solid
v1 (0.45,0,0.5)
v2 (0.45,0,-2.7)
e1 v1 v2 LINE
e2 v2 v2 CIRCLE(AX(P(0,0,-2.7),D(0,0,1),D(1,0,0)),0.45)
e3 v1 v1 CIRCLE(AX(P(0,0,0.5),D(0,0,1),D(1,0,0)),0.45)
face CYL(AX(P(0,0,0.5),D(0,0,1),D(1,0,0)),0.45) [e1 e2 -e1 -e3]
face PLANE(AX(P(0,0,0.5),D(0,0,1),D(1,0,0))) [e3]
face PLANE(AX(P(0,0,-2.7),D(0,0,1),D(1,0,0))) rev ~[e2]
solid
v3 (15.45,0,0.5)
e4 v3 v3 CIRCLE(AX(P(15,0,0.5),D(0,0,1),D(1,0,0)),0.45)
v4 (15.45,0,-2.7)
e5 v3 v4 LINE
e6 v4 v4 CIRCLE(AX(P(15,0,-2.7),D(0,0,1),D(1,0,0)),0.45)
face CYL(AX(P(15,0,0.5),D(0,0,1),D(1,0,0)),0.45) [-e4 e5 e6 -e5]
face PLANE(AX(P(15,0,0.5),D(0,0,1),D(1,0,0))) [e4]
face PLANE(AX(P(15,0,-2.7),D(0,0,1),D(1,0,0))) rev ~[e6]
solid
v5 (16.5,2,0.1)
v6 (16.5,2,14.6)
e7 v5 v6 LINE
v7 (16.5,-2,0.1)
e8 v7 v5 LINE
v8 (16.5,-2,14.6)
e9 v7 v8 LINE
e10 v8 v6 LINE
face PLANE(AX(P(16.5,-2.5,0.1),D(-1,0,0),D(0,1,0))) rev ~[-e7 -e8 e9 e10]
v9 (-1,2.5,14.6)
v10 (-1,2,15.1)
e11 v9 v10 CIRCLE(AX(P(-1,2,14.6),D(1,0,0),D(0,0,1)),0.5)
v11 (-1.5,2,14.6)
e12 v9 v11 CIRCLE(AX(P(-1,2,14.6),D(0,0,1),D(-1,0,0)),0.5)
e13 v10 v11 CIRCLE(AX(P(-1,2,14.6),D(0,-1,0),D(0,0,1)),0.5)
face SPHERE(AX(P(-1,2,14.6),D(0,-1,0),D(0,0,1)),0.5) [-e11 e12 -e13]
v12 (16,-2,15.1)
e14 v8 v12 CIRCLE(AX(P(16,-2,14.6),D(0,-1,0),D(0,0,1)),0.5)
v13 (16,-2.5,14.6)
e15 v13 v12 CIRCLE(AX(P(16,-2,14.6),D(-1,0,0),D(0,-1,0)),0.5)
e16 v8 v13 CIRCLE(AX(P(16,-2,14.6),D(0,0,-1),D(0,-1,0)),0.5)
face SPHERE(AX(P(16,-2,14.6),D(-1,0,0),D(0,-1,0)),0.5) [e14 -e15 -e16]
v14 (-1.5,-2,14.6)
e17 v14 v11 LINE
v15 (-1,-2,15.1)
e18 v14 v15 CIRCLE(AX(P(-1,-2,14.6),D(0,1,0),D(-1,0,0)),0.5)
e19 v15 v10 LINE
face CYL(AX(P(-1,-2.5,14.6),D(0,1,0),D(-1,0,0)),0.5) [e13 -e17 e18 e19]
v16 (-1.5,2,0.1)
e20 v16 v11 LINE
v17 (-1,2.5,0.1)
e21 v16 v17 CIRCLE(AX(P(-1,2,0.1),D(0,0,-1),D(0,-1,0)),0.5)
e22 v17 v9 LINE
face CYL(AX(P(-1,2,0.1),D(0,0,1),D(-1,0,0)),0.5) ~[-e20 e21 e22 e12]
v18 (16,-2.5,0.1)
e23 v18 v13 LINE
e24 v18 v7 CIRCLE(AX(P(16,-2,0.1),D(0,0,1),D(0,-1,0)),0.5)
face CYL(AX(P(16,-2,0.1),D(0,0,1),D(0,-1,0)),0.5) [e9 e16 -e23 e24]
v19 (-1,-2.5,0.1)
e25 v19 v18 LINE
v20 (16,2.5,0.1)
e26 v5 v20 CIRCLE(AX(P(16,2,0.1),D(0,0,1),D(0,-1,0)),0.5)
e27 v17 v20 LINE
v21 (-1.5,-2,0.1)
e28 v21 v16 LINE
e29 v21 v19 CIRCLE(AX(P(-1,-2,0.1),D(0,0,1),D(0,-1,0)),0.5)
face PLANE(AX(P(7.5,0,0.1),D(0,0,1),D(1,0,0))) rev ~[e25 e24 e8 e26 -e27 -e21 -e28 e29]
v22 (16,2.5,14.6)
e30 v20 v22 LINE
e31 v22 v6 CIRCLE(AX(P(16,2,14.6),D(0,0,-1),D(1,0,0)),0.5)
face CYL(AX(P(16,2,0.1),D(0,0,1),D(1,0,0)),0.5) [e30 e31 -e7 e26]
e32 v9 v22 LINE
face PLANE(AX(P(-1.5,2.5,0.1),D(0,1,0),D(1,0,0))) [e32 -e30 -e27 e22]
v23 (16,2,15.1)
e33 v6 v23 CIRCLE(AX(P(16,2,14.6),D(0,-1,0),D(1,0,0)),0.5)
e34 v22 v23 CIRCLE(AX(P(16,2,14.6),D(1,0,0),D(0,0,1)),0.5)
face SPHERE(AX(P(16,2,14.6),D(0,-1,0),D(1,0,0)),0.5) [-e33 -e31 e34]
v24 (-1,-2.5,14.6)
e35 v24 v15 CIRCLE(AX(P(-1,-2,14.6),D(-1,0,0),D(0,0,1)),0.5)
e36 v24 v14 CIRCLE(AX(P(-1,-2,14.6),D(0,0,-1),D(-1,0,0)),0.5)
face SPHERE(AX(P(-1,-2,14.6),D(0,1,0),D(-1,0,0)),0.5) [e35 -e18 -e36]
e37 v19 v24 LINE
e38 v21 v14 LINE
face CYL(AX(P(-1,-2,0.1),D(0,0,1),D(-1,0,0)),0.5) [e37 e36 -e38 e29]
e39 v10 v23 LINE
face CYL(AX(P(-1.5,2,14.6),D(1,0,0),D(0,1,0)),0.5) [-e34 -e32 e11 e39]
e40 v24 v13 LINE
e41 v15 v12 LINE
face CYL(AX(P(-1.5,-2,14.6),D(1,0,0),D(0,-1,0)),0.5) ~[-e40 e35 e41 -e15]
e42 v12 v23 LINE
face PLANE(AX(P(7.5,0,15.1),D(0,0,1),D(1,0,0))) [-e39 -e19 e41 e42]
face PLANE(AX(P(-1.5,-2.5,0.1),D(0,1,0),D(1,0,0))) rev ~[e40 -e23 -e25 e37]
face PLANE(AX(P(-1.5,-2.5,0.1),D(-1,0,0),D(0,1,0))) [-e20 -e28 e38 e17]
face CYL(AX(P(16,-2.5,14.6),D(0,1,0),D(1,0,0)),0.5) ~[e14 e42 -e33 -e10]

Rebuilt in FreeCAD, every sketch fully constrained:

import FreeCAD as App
import Part
import Sketcher
from FreeCAD import Vector
Q = App.Units.Quantity


def edges_at(feature, points):
    """Names of the edges that pass closest to the given points."""
    edges = feature.Shape.Edges
    near = lambda p: min(range(len(edges)), key=lambda i: edges[i].distToShape(Part.Vertex(*p))[0])
    return sorted({f"Edge{near(p) + 1}" for p in points})


def add_polygon(sketch, points):
    """Adds a closed chain of lines whose ends are joined by coincident constraints."""
    first, n = sketch.GeometryCount, len(points)
    for a, b in zip(points, points[1:] + points[:1]):
        sketch.addGeometry(Part.LineSegment(App.Vector(*a, 0), App.Vector(*b, 0)), False)
    for i in range(n):
        sketch.addConstraint(Sketcher.Constraint("Coincident", first + i, 2, first + (i + 1) % n, 1))

doc = App.newDocument("Part")
params = doc.addObject("Spreadsheet::Sheet", "Params")
for row, (alias, value) in enumerate([
    ("sketch1_width", "18 mm"),
    ("sketch1_height", "5 mm"),
    ("pad1_length", "15 mm"),
    ("fillet_radius", "0.5 mm"),
    ("sketch2_diameter", "0.9 mm"),
    ("pad2_length", "3.2 mm"),
], start=1):
    params.set(f"A{row}", alias)
    params.set(f"B{row}", "=" + value)
    params.setAlias(f"B{row}", alias)

body = doc.addObject("PartDesign::Body", "Body")

sketch1 = body.newObject("Sketcher::SketchObject", "Sketch")
sketch1.AttachmentSupport = (doc.getObject("XY_Plane"), [""])
sketch1.MapMode = "FlatFace"
sketch1.AttachmentOffset = App.Placement(Vector(0, 0, 0.1), App.Rotation())
add_polygon(sketch1, [(-2, 2), (-2, -2), (16, -2), (16, 2)])
sketch1.addConstraint([
    Sketcher.Constraint("Vertical", 0),
    Sketcher.Constraint("Horizontal", 1),
    Sketcher.Constraint("Vertical", 2),
    Sketcher.Constraint("Horizontal", 3),
    Sketcher.Constraint("DistanceX", 1, 1, 1, 2, Q("18 mm")),
    Sketcher.Constraint("DistanceY", 0, 2, 0, 1, Q("5 mm")),
    Sketcher.Constraint("DistanceX", 0, 2, -1, 1, Q("1.5 mm")),
    Sketcher.Constraint("DistanceY", 0, 2, -1, 1, Q("2.5 mm")),
])
sketch1.setExpression("Constraints[8]", "Params.sketch1_width")
sketch1.setExpression("Constraints[9]", "Params.sketch1_height")
pad1 = body.newObject("PartDesign::Pad", "Pad")
pad1.Profile = sketch1
pad1.setExpression("Length", "Params.pad1_length")
doc.recompute()

fillet = body.newObject("PartDesign::Fillet", "Fillet")
fillet.Base = (pad1, edges_at(pad1, [
    (-1.5, 0, 15.1),
    (-1.5, -2.5, 7.6),
    (7.5, -2.5, 15.1),
    (16.5, -2.5, 7.6),
    (16.5, 0, 15.1),
    (16.5, 2.5, 7.6),
    (7.5, 2.5, 15.1),
    (-1.5, 2.5, 7.6),
]))
fillet.setExpression("Radius", "Params.fillet_radius")
body2 = doc.addObject("PartDesign::Body", "Body001")
body2.AllowCompound = True

sketch2 = body2.newObject("Sketcher::SketchObject", "Sketch001")
sketch2.AttachmentSupport = (doc.getObject("XY_Plane001"), [""])
sketch2.MapMode = "FlatFace"
sketch2.AttachmentOffset = App.Placement(Vector(0, 0, 0.5), App.Rotation())
sketch2.addGeometry([
    Part.Circle(Vector(0, 0, 0), Vector(0, 0, 1), 0.45),
    Part.Circle(Vector(15, 0, 0), Vector(0, 0, 1), 0.45),
], False)
sketch2.addConstraint([
    Sketcher.Constraint("Coincident", 0, 3, -1, 1),
    Sketcher.Constraint("Equal", 0, 1),
    Sketcher.Constraint("PointOnObject", 1, 3, -1),
    Sketcher.Constraint("Diameter", 0, Q("0.9 mm")),
    Sketcher.Constraint("DistanceX", -1, 1, 1, 3, Q("15 mm")),
])
sketch2.setExpression("Constraints[3]", "Params.sketch2_diameter")
pad2 = body2.newObject("PartDesign::Pad", "Pad001")
pad2.Profile = sketch2
pad2.setExpression("Length", "Params.pad2_length")
pad2.Reversed = True

doc.recompute()
